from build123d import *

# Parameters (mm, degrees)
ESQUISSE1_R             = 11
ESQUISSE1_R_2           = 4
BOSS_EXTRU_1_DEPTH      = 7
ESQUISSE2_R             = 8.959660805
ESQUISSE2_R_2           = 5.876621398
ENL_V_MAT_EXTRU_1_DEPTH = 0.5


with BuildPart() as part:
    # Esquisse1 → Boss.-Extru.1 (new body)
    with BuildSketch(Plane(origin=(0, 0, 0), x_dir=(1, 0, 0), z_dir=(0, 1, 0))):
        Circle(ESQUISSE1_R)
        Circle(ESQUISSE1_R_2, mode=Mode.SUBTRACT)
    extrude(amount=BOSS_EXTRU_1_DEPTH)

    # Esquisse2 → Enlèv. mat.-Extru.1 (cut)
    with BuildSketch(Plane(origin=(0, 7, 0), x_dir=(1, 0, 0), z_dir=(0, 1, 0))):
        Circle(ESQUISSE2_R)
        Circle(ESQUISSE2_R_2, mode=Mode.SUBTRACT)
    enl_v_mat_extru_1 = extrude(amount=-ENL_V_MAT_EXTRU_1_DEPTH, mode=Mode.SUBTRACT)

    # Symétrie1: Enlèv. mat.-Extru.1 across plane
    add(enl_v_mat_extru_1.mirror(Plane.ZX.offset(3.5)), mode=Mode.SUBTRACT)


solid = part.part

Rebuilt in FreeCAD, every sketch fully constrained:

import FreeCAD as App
import Part
import Sketcher
from FreeCAD import Vector
Q = App.Units.Quantity

doc = App.newDocument("Part")
params = doc.addObject("Spreadsheet::Sheet", "Params")
for row, (alias, value) in enumerate([
    ("sketch1_diameter", "22 mm"),
    ("sketch1_diameter2", "8 mm"),
    ("pad1_length", "7 mm"),
    ("pocket1_length", "0.5 mm"),
], start=1):
    params.set(f"A{row}", alias)
    params.set(f"B{row}", "=" + value)
    params.setAlias(f"B{row}", alias)

body = doc.addObject("PartDesign::Body", "Body")

sketch1 = body.newObject("Sketcher::SketchObject", "Sketch")
sketch1.AttachmentSupport = (doc.getObject("XZ_Plane"), [""])
sketch1.MapMode = "FlatFace"
sketch1.addGeometry([
    Part.Circle(Vector(0, 0, 0), Vector(0, 0, 1), 11),
    Part.Circle(Vector(0, 0, 0), Vector(0, 0, 1), 4),
], False)
sketch1.addConstraint([
    Sketcher.Constraint("Coincident", 0, 3, -1, 1),
    Sketcher.Constraint("Coincident", 1, 3, -1, 1),
    Sketcher.Constraint("Diameter", 0, Q("22 mm")),
    Sketcher.Constraint("Diameter", 1, Q("8 mm")),
])
sketch1.setExpression("Constraints[2]", "Params.sketch1_diameter")
sketch1.setExpression("Constraints[3]", "Params.sketch1_diameter2")
pad1 = body.newObject("PartDesign::Pad", "Pad")
pad1.Profile = sketch1
pad1.setExpression("Length", "Params.pad1_length")
pad1.Reversed = True

sketch2 = body.newObject("Sketcher::SketchObject", "Sketch001")
sketch2.AttachmentSupport = (doc.getObject("XZ_Plane"), [""])
sketch2.MapMode = "FlatFace"
sketch2.AttachmentOffset = App.Placement(Vector(0, 0, -7), App.Rotation())
sketch2.addGeometry([
    Part.Circle(Vector(0, 0, 0), Vector(0, 0, 1), 8.959661),
    Part.Circle(Vector(0, 0, 0), Vector(0, 0, 1), 5.876621),
], False)
sketch2.addConstraint([
    Sketcher.Constraint("Coincident", 0, 3, -1, 1),
    Sketcher.Constraint("Coincident", 1, 3, -1, 1),
    Sketcher.Constraint("Diameter", 0, Q("17.919322 mm")),
    Sketcher.Constraint("Diameter", 1, Q("11.753243 mm")),
])
pocket1 = body.newObject("PartDesign::Pocket", "Pocket")
pocket1.Profile = sketch2
pocket1.setExpression("Length", "Params.pocket1_length")
pocket1.Reversed = True
doc.recompute()

datumplane = body.newObject("PartDesign::Plane", "DatumPlane")
datumplane.AttachmentSupport = (doc.getObject("XZ_Plane"), [""])
datumplane.MapMode = "FlatFace"
datumplane.AttachmentOffset = App.Placement(Vector(0, 0, -3.5), App.Rotation())
mirrored = body.newObject("PartDesign::Mirrored", "Mirrored")
mirrored.Originals = [pocket1]
mirrored.MirrorPlane = (datumplane, [""])
body.Tip = mirrored

doc.recompute()
